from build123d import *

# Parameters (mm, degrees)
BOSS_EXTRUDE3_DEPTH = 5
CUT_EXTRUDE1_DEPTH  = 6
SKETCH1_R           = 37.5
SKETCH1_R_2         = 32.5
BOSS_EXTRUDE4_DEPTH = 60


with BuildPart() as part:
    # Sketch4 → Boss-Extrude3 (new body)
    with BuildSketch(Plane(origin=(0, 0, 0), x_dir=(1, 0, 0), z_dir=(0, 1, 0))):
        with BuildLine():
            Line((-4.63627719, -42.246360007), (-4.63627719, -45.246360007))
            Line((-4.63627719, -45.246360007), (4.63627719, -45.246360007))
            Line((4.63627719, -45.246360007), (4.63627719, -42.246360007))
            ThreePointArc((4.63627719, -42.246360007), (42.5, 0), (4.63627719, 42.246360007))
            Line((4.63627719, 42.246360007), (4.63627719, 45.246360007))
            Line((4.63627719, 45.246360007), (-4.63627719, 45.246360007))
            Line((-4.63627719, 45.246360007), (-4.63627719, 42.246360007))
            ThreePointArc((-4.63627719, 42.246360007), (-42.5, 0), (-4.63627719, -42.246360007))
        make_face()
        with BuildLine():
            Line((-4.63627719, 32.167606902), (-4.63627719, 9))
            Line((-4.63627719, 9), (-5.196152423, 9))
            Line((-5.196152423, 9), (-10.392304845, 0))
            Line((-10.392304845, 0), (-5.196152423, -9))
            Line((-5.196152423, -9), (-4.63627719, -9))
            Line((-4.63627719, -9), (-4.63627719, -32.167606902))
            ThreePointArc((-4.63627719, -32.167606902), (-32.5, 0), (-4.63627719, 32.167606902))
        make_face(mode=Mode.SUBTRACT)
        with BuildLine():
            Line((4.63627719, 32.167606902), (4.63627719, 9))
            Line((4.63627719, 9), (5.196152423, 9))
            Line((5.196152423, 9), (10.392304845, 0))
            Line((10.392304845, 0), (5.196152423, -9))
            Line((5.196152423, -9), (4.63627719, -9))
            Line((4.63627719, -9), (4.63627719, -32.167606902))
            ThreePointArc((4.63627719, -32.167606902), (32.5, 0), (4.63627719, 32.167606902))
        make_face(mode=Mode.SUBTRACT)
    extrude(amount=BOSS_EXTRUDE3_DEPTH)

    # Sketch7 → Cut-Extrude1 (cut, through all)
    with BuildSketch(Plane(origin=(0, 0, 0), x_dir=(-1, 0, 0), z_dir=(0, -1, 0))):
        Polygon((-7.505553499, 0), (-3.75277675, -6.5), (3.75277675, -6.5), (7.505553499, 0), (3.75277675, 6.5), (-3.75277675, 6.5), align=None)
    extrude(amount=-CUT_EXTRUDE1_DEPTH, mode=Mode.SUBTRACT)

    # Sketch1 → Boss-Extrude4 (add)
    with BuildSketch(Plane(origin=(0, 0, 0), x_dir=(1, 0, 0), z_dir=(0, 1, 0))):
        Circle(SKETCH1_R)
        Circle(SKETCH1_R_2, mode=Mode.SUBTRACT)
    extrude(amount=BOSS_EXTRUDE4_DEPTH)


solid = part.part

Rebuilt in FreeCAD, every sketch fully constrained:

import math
import FreeCAD as App
import Part
import Sketcher
from FreeCAD import Vector
Q = App.Units.Quantity

doc = App.newDocument("Part")
body = doc.addObject("PartDesign::Body", "Body")

# Sketch on XZ plane
sketch1 = doc.addObject("Sketcher::SketchObject", "Sketch")
body.addObject(sketch1)
sketch1.AttachmentSupport = (doc.XZ_Plane, [""])
sketch1.MapMode = "FlatFace"
sketch1.addGeometry([
    Part.LineSegment(Vector(-4.6, 42.2, 0), Vector(-4.6, 45.2, 0)),  # 0
    Part.LineSegment(Vector(-4.6, 45.2, 0), Vector(4.6, 45.2, 0)),  # 1
    Part.LineSegment(Vector(4.6, 45.2, 0), Vector(4.6, 42.2, 0)),  # 2
    Part.ArcOfCircle(Part.Circle(Vector(0, 0, 0), Vector(0, 0, 1), 42.5), math.radians(-84), math.radians(84)),  # 3
    Part.LineSegment(Vector(4.6, -42.2, 0), Vector(4.6, -45.2, 0)),  # 4
    Part.LineSegment(Vector(4.6, -45.2, 0), Vector(-4.6, -45.2, 0)),  # 5
    Part.LineSegment(Vector(-4.6, -45.2, 0), Vector(-4.6, -42.2, 0)),  # 6
    Part.ArcOfCircle(Part.Circle(Vector(0, 0, 0), Vector(0, 0, 1), 42.5), math.radians(96), math.radians(264)),  # 7
    Part.ArcOfCircle(Part.Circle(Vector(0, 0, 0), Vector(0, 0, 1), 32.5), math.radians(98), math.radians(262)),  # 8
    Part.LineSegment(Vector(-4.6, -32.2, 0), Vector(-4.6, -9, 0)),  # 9
    Part.LineSegment(Vector(-4.6, -9, 0), Vector(-5.2, -9, 0)),  # 10
    Part.LineSegment(Vector(-5.2, -9, 0), Vector(-10.4, 0, 0)),  # 11
    Part.LineSegment(Vector(-10.4, 0, 0), Vector(-5.2, 9, 0)),  # 12
    Part.LineSegment(Vector(-5.2, 9, 0), Vector(-4.6, 9, 0)),  # 13
    Part.LineSegment(Vector(-4.6, 9, 0), Vector(-4.6, 32.2, 0)),  # 14
    Part.LineSegment(Vector(4.6, -9, 0), Vector(4.6, -32.2, 0)),  # 15
    Part.ArcOfCircle(Part.Circle(Vector(0, 0, 0), Vector(0, 0, 1), 32.5), math.radians(-82), math.radians(82)),  # 16
    Part.LineSegment(Vector(4.6, 32.2, 0), Vector(4.6, 9, 0)),  # 17
    Part.LineSegment(Vector(4.6, 9, 0), Vector(5.2, 9, 0)),  # 18
    Part.LineSegment(Vector(5.2, 9, 0), Vector(10.4, 0, 0)),  # 19
    Part.LineSegment(Vector(10.4, 0, 0), Vector(5.2, -9, 0)),  # 20
    Part.LineSegment(Vector(5.2, -9, 0), Vector(4.6, -9, 0)),  # 21
], False)
sketch1.addConstraint([
    Sketcher.Constraint("Coincident", 0, 2, 1, 1),
    Sketcher.Constraint("Coincident", 1, 2, 2, 1),
    Sketcher.Constraint("Coincident", 2, 2, 3, 2),
    Sketcher.Constraint("Coincident", 3, 1, 4, 1),
    Sketcher.Constraint("Coincident", 4, 2, 5, 1),
    Sketcher.Constraint("Coincident", 5, 2, 6, 1),
    Sketcher.Constraint("Coincident", 6, 2, 7, 2),
    Sketcher.Constraint("Coincident", 7, 1, 0, 1),
    Sketcher.Constraint("Coincident", 8, 2, 9, 1),
    Sketcher.Constraint("Coincident", 9, 2, 10, 1),
    Sketcher.Constraint("Coincident", 10, 2, 11, 1),
    Sketcher.Constraint("Coincident", 11, 2, 12, 1),
    Sketcher.Constraint("Coincident", 12, 2, 13, 1),
    Sketcher.Constraint("Coincident", 13, 2, 14, 1),
    Sketcher.Constraint("Coincident", 14, 2, 8, 1),
    Sketcher.Constraint("Coincident", 15, 2, 16, 1),
    Sketcher.Constraint("Coincident", 16, 2, 17, 1),
    Sketcher.Constraint("Coincident", 17, 2, 18, 1),
    Sketcher.Constraint("Coincident", 18, 2, 19, 1),
    Sketcher.Constraint("Coincident", 19, 2, 20, 1),
    Sketcher.Constraint("Coincident", 20, 2, 21, 1),
    Sketcher.Constraint("Coincident", 21, 2, 15, 1),
    Sketcher.Constraint("Vertical", 0),
    Sketcher.Constraint("Horizontal", 1),
    Sketcher.Constraint("Vertical", 2),
    Sketcher.Constraint("Vertical", 4),
    Sketcher.Constraint("Horizontal", 5),
    Sketcher.Constraint("Vertical", 6),
    Sketcher.Constraint("Vertical", 9),
    Sketcher.Constraint("Horizontal", 10),
    Sketcher.Constraint("Horizontal", 13),
    Sketcher.Constraint("Vertical", 14),
    Sketcher.Constraint("Vertical", 15),
    Sketcher.Constraint("Vertical", 17),
    Sketcher.Constraint("Horizontal", 18),
    Sketcher.Constraint("Horizontal", 21),
    Sketcher.Constraint("Coincident", 3, 3, -1, 1),
    Sketcher.Constraint("Coincident", 7, 3, -1, 1),
    Sketcher.Constraint("Coincident", 8, 3, -1, 1),
    Sketcher.Constraint("Coincident", 16, 3, -1, 1),
    Sketcher.Constraint("Equal", 3, 7),
    Sketcher.Constraint("Equal", 8, 16),
    Sketcher.Constraint("Symmetric", 0, 2, 4, 2, -1, 1),
    Sketcher.Constraint("Symmetric", 9, 2, 17, 2, -1, 1),
    Sketcher.Constraint("Symmetric", 11, 2, 19, 2, -1, 1),
    Sketcher.Constraint("Symmetric", 12, 2, 20, 2, -1, 1),
    Sketcher.Constraint("Symmetric", 13, 2, 17, 2, -2),
    Sketcher.Constraint("PointOnObject", 11, 2, -1),
    Sketcher.Constraint("Parallel", 11, 19),
    Sketcher.Constraint("Horizontal", 3, 1, 6, 2),
    Sketcher.Constraint("Horizontal", 2, 2, 7, 1),
    Sketcher.Constraint("Horizontal", 8, 2, 15, 2),
    Sketcher.Constraint("Vertical", 7, 1, 8, 2),
    Sketcher.Constraint("Vertical", 10, 2, 12, 2),
    Sketcher.Constraint("Radius", 3, 42.5),
    Sketcher.Constraint("Radius", 8, 32.5),
    Sketcher.Constraint("DistanceY", 0, 1, 0, 2, 3.0),
    Sketcher.Constraint("Angle", 11, Q("120 deg")),
    Sketcher.Constraint("DistanceY", 9, 2, -1, 1, 9.0),
    Sketcher.Constraint("DistanceX", 1, 1, 1, 2, 9.272554),
    Sketcher.Constraint("DistanceX", 10, 2, 10, 1, 0.559875),
])
pad1 = doc.addObject("PartDesign::Pad", "Pad")
body.addObject(pad1)
pad1.Profile = sketch1
pad1.Length = 5
pad1.Reversed = True

# Sketch on XZ plane
sketch2 = doc.addObject("Sketcher::SketchObject", "Sketch001")
body.addObject(sketch2)
sketch2.AttachmentSupport = (doc.XZ_Plane, [""])
sketch2.MapMode = "FlatFace"
sketch2.addGeometry([
    Part.LineSegment(Vector(8, 0, 0), Vector(4, 6, 0)),  # 0
    Part.LineSegment(Vector(4, 6, 0), Vector(-4, 6, 0)),  # 1
    Part.LineSegment(Vector(-4, 6, 0), Vector(-8, 0, 0)),  # 2
    Part.LineSegment(Vector(-8, 0, 0), Vector(-4, -6, 0)),  # 3
    Part.LineSegment(Vector(-4, -6, 0), Vector(4, -6, 0)),  # 4
    Part.LineSegment(Vector(4, -6, 0), Vector(8, 0, 0)),  # 5
], False)
sketch2.addConstraint([
    Sketcher.Constraint("Coincident", 0, 2, 1, 1),
    Sketcher.Constraint("Coincident", 1, 2, 2, 1),
    Sketcher.Constraint("Coincident", 2, 2, 3, 1),
    Sketcher.Constraint("Coincident", 3, 2, 4, 1),
    Sketcher.Constraint("Coincident", 4, 2, 5, 1),
    Sketcher.Constraint("Coincident", 5, 2, 0, 1),
    Sketcher.Constraint("Horizontal", 1),
    Sketcher.Constraint("Horizontal", 4),
    Sketcher.Constraint("Symmetric", 0, 2, 3, 2, -1, 1),
    Sketcher.Constraint("Symmetric", 2, 2, 5, 2, -1, 1),
    Sketcher.Constraint("PointOnObject", 2, 2, -1),
    Sketcher.Constraint("Parallel", 2, 5),
    Sketcher.Constraint("Vertical", 1, 2, 3, 2),
    Sketcher.Constraint("Angle", 0, Q("120 deg")),
    Sketcher.Constraint("DistanceY", 3, 2, 1, 2, 13.0),
    Sketcher.Constraint("DistanceX", 1, 2, 1, 1, 7.505554),
])
pocket1 = doc.addObject("PartDesign::Pocket", "Pocket")
body.addObject(pocket1)
pocket1.Profile = sketch2
pocket1.Type = "ThroughAll"

# Sketch on XZ plane
sketch3 = doc.addObject("Sketcher::SketchObject", "Sketch002")
body.addObject(sketch3)
sketch3.AttachmentSupport = (doc.XZ_Plane, [""])
sketch3.MapMode = "FlatFace"
sketch3.addGeometry([
    Part.Circle(Vector(0, 0, 0), Vector(0, 0, 1), 38),
    Part.Circle(Vector(0, 0, 0), Vector(0, 0, 1), 32),
], False)
sketch3.addConstraint([
    Sketcher.Constraint("Coincident", 0, 3, -1, 1),
    Sketcher.Constraint("Coincident", 1, 3, -1, 1),
    Sketcher.Constraint("Diameter", 0, 75.0),
    Sketcher.Constraint("Diameter", 1, 65.0),
])
pad2 = doc.addObject("PartDesign::Pad", "Pad001")
body.addObject(pad2)
pad2.Profile = sketch3
pad2.Length = 60
pad2.Reversed = True

doc.recompute()
